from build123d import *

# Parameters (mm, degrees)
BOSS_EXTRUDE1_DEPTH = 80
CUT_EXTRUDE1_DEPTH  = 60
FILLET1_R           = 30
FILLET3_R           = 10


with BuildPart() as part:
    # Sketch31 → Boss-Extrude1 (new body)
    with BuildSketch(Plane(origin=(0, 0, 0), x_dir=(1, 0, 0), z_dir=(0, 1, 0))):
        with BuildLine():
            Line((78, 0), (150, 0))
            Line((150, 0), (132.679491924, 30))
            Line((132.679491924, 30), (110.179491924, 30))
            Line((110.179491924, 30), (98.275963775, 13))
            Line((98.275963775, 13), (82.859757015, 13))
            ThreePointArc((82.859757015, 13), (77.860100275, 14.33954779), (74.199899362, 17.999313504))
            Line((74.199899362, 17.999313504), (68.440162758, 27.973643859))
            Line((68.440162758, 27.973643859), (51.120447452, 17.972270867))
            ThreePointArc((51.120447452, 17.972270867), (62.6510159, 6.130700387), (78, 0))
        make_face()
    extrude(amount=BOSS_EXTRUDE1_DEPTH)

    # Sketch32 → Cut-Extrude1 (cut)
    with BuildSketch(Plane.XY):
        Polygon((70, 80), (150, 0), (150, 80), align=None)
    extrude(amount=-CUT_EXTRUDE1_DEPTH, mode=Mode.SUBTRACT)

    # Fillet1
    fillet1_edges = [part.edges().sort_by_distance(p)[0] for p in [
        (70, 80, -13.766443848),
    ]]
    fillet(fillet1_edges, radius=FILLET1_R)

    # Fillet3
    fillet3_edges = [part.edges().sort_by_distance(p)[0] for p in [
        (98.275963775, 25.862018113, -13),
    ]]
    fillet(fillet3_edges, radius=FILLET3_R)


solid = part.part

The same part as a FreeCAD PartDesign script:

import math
import FreeCAD as App
import Part
import Sketcher

V = App.Vector
Q = App.Units.Quantity


def edges_at(feature, points):
    """Names of the edges that pass closest to the given points."""
    edges = feature.Shape.Edges
    near = lambda p: min(range(len(edges)), key=lambda i: edges[i].distToShape(Part.Vertex(*p))[0])
    return sorted({f"Edge{near(p) + 1}" for p in points})


def add_polygon(sketch, points):
    """Adds a closed chain of lines whose ends are joined by coincident constraints."""
    first, n = sketch.GeometryCount, len(points)
    for a, b in zip(points, points[1:] + points[:1]):
        sketch.addGeometry(Part.LineSegment(App.Vector(*a, 0), App.Vector(*b, 0)), False)
    for i in range(n):
        sketch.addConstraint(Sketcher.Constraint("Coincident", first + i, 2, first + (i + 1) % n, 1))

doc = App.newDocument("Part")
params = doc.addObject("Spreadsheet::Sheet", "Params")
for row, (alias, value) in enumerate([
    ("sketch1_radius", "10 mm"),
    ("sketch1_width", "72 mm"),
    ("sketch1_length", "20 mm"),
    ("sketch1_width2", "22.5 mm"),
    ("pad1_length", "80 mm"),
    ("sketch2_width", "80 mm"),
    ("pocket1_length", "60 mm"),
    ("fillet_radius", "30 mm"),
    ("fillet2_radius", "10 mm"),
], start=1):
    params.set(f"A{row}", alias)
    params.set(f"B{row}", "=" + value)
    params.setAlias(f"B{row}", alias)

body = doc.addObject("PartDesign::Body", "Body")

sketch1 = body.newObject("Sketcher::SketchObject", "Sketch")
sketch1.AttachmentSupport = (doc.getObject("XZ_Plane"), [""])
sketch1.MapMode = "FlatFace"
sketch1.addGeometry([
    Part.LineSegment(V(78, 0, 0), V(150, 0, 0)),
    Part.LineSegment(V(150, 0, 0), V(133, -30, 0)),
    Part.LineSegment(V(133, -30, 0), V(110, -30, 0)),
    Part.LineSegment(V(110, -30, 0), V(98, -13, 0)),
    Part.LineSegment(V(98, -13, 0), V(83, -13, 0)),
    Part.ArcOfCircle(Part.Circle(V(83, -23, 0), V(0, 0, 1), 10), math.radians(90), math.radians(150)),
    Part.LineSegment(V(74, -18, 0), V(68, -28, 0)),
    Part.LineSegment(V(68, -28, 0), V(51, -18, 0)),
    Part.ArcOfCircle(Part.Circle(V(85, -39, 0), V(0, 0, 1), 40), math.radians(100), math.radians(148)),
], False)
sketch1.addConstraint([
    Sketcher.Constraint("Coincident", 0, 2, 1, 1),
    Sketcher.Constraint("Coincident", 1, 2, 2, 1),
    Sketcher.Constraint("Coincident", 2, 2, 3, 1),
    Sketcher.Constraint("Coincident", 3, 2, 4, 1),
    Sketcher.Constraint("Tangent", 4, 2, 5, 1),
    Sketcher.Constraint("Tangent", 5, 2, 6, 1),
    Sketcher.Constraint("Coincident", 6, 2, 7, 1),
    Sketcher.Constraint("Coincident", 7, 2, 8, 2),
    Sketcher.Constraint("Coincident", 8, 1, 0, 1),
    Sketcher.Constraint("Horizontal", 0),
    Sketcher.Constraint("Horizontal", 2),
    Sketcher.Constraint("Horizontal", 4),
    Sketcher.Constraint("PointOnObject", 0, 2, -1),
    Sketcher.Constraint("Perpendicular", 6, 7),
    Sketcher.Constraint("Radius", 5, 10.0),
    Sketcher.Constraint("DistanceX", 0, 1, 0, 2, 72.0),
    Sketcher.Constraint("Angle", 1, Q("-120 deg")),
    Sketcher.Constraint("Angle", 3, Q("125 deg")),
    Sketcher.Constraint("Distance", 7, 20.0),
    Sketcher.Constraint("DistanceX", 2, 2, 2, 1, 22.5),
    Sketcher.Constraint("DistanceY", 5, 3, -1, 1, 23.0),
    Sketcher.Constraint("DistanceX", -1, 1, 0, 2, 150.0),
    Sketcher.Constraint("DistanceY", 1, 2, -1, 1, 30.0),
    Sketcher.Constraint("Radius", 8, 39.764807),
    Sketcher.Constraint("DistanceX", -1, 1, 8, 3, 84.753299),
    Sketcher.Constraint("DistanceX", -1, 1, 5, 2, 74.199899),
    Sketcher.Constraint("DistanceX", 6, 2, 3, 2, 29.835801),
])
sketch1.setExpression("Constraints[14]", "Params.sketch1_radius")
sketch1.setExpression("Constraints[15]", "Params.sketch1_width")
sketch1.setExpression("Constraints[18]", "Params.sketch1_length")
sketch1.setExpression("Constraints[19]", "Params.sketch1_width2")
pad1 = body.newObject("PartDesign::Pad", "Pad")
pad1.Profile = sketch1
pad1.setExpression("Length", "Params.pad1_length")
pad1.Reversed = True

sketch2 = body.newObject("Sketcher::SketchObject", "Sketch001")
sketch2.AttachmentSupport = (doc.getObject("XY_Plane"), [""])
sketch2.MapMode = "FlatFace"
add_polygon(sketch2, [(70, 80), (150, 0), (150, 80)])
sketch2.addConstraint([
    Sketcher.Constraint("Vertical", 1),
    Sketcher.Constraint("Horizontal", 2),
    Sketcher.Constraint("PointOnObject", 0, 2, -1),
    Sketcher.Constraint("Equal", 2, 1),
    Sketcher.Constraint("DistanceX", 2, 2, 2, 1, 80.0),
    Sketcher.Constraint("DistanceX", -1, 1, 0, 2, 150.0),
])
sketch2.setExpression("Constraints[7]", "Params.sketch2_width")
pocket1 = body.newObject("PartDesign::Pocket", "Pocket")
pocket1.Profile = sketch2
pocket1.setExpression("Length", "Params.pocket1_length")
doc.recompute()

fillet = body.newObject("PartDesign::Fillet", "Fillet")
fillet.Base = (pocket1, edges_at(pocket1, [(70, 80, -13.766)]))
fillet.setExpression("Radius", "Params.fillet_radius")
doc.recompute()

fillet2 = body.newObject("PartDesign::Fillet", "Fillet001")
fillet2.Base = (fillet, edges_at(fillet, [(98.276, 25.862, -13)]))
fillet2.setExpression("Radius", "Params.fillet2_radius")

doc.recompute()
